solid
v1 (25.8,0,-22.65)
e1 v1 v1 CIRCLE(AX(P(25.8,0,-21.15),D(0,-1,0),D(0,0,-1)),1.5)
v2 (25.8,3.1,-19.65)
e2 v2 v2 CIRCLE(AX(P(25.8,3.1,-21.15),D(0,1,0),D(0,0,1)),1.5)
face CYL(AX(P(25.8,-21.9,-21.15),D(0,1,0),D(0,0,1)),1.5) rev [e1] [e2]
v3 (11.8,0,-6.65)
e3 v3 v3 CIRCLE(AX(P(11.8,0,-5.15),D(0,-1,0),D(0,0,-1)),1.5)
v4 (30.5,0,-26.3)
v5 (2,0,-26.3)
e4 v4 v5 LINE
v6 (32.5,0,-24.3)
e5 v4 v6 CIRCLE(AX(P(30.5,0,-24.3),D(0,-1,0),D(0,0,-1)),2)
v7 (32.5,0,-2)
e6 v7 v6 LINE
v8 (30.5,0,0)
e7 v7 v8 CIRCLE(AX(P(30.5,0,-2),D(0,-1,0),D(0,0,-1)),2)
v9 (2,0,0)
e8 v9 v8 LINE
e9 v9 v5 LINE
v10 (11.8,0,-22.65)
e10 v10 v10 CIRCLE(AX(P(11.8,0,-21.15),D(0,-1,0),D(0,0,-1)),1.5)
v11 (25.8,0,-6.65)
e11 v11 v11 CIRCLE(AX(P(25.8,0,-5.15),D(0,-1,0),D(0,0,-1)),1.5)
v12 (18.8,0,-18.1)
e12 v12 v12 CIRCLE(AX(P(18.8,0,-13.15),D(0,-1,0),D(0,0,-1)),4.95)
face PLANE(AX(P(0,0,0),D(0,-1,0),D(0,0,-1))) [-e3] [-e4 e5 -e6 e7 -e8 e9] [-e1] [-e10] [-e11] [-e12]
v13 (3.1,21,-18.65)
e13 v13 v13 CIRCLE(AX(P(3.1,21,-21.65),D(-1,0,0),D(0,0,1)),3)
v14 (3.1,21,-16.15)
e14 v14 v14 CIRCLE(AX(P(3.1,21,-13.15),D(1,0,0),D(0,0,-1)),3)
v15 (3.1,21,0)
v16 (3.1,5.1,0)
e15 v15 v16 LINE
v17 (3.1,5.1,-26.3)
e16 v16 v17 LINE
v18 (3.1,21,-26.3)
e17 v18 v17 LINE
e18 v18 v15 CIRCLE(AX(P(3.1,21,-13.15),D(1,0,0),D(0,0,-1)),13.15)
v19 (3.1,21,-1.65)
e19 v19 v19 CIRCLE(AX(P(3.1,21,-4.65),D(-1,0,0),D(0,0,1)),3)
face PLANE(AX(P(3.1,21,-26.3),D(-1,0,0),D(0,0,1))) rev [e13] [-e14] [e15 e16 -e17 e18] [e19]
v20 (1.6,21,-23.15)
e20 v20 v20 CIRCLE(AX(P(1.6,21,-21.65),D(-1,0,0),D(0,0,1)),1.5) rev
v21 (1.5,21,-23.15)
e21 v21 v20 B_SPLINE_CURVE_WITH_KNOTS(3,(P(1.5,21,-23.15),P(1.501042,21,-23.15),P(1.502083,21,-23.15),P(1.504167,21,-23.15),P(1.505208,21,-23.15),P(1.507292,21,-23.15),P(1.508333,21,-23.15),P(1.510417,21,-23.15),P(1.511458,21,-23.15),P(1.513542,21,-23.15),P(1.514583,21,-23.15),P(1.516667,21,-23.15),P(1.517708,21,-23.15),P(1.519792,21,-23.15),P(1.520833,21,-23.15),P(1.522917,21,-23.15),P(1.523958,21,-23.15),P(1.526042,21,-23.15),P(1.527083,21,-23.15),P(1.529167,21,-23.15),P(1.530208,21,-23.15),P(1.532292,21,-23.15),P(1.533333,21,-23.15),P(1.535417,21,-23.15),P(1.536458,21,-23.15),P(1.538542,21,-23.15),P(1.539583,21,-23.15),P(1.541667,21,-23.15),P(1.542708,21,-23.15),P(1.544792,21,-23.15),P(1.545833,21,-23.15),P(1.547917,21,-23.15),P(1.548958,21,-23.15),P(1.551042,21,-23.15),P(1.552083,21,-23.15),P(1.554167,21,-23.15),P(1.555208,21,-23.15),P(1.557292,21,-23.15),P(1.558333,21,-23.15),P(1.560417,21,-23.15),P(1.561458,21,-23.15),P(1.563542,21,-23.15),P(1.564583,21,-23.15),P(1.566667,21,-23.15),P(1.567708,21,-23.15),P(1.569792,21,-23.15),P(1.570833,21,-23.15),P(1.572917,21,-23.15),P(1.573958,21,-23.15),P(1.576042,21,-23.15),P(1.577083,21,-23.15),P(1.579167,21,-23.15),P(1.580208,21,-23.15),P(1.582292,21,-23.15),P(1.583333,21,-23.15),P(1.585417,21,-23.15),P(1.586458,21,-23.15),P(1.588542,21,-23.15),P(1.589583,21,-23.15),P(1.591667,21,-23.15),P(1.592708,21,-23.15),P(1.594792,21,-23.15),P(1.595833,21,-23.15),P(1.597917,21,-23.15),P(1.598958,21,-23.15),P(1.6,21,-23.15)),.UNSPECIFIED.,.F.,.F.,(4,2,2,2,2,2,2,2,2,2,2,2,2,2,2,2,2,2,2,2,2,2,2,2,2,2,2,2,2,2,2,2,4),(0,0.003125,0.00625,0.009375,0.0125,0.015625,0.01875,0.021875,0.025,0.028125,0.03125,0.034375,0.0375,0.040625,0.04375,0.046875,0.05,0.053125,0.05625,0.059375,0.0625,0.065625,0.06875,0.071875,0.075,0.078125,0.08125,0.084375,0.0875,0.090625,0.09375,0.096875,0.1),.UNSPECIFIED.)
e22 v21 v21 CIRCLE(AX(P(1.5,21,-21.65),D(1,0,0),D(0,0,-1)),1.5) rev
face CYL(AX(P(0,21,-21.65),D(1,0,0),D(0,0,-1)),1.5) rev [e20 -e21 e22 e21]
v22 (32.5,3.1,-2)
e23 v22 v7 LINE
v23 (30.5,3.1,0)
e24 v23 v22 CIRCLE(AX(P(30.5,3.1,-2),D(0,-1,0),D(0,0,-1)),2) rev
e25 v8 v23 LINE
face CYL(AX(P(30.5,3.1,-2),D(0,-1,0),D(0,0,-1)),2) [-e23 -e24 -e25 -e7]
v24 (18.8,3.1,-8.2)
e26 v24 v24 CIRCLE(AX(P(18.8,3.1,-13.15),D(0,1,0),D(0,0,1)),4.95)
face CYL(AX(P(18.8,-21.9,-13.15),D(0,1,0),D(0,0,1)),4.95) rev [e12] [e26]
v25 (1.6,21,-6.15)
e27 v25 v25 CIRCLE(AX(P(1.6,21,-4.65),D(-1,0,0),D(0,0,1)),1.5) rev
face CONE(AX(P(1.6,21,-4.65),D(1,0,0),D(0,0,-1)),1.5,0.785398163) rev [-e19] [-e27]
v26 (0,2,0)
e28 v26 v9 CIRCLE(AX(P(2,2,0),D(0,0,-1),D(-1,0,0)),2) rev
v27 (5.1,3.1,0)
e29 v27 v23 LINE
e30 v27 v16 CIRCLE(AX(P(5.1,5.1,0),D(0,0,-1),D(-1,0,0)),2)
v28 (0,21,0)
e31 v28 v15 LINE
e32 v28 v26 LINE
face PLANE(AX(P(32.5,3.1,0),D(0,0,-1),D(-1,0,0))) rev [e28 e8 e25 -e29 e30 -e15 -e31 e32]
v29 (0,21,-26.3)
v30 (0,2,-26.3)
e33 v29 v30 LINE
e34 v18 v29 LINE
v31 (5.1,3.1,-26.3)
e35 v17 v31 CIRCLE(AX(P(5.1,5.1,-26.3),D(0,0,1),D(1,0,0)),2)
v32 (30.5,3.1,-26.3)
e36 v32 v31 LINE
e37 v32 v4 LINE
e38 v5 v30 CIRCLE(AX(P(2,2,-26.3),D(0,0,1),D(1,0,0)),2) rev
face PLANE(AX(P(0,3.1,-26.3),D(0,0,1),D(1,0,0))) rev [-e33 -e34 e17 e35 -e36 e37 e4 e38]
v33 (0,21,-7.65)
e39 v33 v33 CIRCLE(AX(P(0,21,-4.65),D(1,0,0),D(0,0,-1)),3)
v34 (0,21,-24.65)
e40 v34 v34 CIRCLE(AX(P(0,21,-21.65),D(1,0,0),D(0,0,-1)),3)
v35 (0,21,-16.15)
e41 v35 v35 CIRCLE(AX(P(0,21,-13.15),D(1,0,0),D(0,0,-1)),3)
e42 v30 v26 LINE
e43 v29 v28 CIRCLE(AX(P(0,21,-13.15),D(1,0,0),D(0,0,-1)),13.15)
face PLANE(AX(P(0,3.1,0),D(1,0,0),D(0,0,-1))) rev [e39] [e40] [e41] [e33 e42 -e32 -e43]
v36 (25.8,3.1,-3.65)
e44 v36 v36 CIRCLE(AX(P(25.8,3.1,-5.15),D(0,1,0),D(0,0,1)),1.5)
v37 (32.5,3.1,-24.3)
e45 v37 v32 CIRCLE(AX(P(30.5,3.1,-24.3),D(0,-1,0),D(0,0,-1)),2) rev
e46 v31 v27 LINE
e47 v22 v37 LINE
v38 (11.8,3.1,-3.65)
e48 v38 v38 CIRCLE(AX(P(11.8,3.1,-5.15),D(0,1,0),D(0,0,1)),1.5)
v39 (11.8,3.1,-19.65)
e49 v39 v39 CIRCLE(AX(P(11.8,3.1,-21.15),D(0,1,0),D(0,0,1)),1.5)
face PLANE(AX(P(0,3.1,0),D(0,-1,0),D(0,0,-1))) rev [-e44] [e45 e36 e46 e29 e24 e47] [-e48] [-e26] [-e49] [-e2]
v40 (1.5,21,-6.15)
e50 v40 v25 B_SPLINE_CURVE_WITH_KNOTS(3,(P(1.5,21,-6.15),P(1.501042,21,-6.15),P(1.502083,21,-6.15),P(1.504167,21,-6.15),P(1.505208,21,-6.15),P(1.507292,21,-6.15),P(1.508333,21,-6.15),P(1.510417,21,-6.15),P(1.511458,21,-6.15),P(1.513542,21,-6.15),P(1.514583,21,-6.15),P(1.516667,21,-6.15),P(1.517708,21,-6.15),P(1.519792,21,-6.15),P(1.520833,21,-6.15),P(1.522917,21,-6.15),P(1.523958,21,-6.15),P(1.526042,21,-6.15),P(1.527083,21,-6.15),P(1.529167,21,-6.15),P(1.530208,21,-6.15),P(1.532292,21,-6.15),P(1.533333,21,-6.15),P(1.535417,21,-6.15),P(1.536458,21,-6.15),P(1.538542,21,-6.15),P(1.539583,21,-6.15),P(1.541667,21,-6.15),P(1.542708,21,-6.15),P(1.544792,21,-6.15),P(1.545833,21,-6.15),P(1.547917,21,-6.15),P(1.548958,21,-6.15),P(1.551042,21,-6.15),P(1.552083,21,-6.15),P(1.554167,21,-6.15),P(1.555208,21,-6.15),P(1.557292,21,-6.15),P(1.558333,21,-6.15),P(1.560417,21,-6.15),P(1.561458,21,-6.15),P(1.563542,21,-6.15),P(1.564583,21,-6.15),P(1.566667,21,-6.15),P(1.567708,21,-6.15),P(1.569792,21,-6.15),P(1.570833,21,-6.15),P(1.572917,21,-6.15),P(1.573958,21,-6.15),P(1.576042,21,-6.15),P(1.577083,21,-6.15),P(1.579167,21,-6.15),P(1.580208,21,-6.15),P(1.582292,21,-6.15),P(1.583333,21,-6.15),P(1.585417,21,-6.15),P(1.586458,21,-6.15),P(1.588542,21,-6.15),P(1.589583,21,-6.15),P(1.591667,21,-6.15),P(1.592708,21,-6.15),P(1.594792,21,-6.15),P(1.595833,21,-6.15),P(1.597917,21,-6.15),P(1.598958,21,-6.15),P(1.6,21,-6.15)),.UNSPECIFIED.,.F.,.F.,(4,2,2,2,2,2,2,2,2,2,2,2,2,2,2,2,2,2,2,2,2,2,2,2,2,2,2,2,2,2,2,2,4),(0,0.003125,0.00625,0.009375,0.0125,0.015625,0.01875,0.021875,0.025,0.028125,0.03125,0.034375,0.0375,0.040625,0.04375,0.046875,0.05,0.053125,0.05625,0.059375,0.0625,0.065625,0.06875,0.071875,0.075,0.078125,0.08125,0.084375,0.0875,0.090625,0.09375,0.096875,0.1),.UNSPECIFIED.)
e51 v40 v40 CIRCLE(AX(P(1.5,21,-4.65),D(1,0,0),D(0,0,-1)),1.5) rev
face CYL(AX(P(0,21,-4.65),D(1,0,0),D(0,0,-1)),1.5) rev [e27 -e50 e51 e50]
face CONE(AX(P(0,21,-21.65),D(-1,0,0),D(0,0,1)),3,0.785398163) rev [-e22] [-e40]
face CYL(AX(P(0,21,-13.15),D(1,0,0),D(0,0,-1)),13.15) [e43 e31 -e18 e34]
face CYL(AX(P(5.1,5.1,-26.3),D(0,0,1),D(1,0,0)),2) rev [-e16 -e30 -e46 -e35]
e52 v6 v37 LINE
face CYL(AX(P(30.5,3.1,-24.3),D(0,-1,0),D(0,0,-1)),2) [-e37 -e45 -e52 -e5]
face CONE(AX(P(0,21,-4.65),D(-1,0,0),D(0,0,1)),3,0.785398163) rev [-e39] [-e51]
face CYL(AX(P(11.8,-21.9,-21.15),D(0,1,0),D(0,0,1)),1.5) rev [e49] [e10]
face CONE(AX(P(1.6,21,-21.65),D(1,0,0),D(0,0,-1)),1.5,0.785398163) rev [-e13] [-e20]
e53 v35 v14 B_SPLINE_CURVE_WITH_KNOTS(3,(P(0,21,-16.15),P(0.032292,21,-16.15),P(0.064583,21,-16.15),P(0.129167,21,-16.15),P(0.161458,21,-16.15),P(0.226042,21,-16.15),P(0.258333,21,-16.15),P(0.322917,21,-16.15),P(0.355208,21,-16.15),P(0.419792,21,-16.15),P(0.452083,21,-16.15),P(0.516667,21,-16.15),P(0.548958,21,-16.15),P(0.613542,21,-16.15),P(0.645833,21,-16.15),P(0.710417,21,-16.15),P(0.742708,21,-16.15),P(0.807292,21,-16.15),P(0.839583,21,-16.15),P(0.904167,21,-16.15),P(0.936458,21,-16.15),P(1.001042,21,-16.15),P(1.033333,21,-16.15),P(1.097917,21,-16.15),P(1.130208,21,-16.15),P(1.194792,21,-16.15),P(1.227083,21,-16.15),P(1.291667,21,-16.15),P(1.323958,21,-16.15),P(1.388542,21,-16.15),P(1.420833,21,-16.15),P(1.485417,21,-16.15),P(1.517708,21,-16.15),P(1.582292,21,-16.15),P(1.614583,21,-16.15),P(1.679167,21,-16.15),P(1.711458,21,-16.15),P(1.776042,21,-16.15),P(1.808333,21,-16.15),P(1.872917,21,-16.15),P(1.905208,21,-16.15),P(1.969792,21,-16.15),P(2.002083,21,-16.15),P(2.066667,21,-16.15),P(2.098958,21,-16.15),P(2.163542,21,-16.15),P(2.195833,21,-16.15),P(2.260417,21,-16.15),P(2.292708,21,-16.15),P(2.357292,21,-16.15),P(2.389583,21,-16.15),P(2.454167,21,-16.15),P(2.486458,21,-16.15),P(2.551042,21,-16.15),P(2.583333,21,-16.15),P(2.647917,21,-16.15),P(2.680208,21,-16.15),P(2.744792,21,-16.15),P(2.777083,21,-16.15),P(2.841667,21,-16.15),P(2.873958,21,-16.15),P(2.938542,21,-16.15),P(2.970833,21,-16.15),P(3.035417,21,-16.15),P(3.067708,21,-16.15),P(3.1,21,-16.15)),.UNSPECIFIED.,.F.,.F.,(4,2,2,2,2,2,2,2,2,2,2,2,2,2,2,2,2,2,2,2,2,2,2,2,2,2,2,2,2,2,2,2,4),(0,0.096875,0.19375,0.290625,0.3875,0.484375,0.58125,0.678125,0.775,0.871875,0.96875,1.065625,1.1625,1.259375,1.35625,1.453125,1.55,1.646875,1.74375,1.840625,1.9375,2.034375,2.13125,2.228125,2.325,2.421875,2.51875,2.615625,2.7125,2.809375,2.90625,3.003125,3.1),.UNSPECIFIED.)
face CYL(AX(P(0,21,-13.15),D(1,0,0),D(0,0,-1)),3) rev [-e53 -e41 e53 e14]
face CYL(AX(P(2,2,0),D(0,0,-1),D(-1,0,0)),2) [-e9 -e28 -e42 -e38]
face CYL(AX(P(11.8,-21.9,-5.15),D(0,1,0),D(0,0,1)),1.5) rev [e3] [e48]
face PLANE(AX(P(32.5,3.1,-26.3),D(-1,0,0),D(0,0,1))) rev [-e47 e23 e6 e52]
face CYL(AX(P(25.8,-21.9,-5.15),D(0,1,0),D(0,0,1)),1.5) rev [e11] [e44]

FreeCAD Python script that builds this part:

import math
import FreeCAD as App
import Part
import Sketcher


def edges_at(feature, points):
    """Names of the edges that pass closest to the given points."""
    edges = feature.Shape.Edges
    near = lambda p: min(range(len(edges)), key=lambda i: edges[i].distToShape(Part.Vertex(*p))[0])
    return sorted({f"Edge{near(p) + 1}" for p in points})


def add_polygon(sketch, points):
    """Adds a closed chain of lines whose ends are joined by coincident constraints."""
    first, n = sketch.GeometryCount, len(points)
    for a, b in zip(points, points[1:] + points[:1]):
        sketch.addGeometry(Part.LineSegment(App.Vector(*a, 0), App.Vector(*b, 0)), False)
    for i in range(n):
        sketch.addConstraint(Sketcher.Constraint("Coincident", first + i, 2, first + (i + 1) % n, 1))

doc = App.newDocument("Part")
params = doc.addObject("Spreadsheet::Sheet", "Params")
for row, (alias, value) in enumerate([
    ("sketch1_width", "32.5 mm"),
    ("sketch1_height", "26.3 mm"),
    ("pad1_length", "3.1 mm"),
    ("sketch2_width", "3.1 mm"),
    ("sketch2_height", "26.3 mm"),
    ("pad2_length", "17.9 mm"),
    ("sketch3_radius", "13.15 mm"),
    ("pad3_length", "3.1 mm"),
    ("fillet_radius", "2 mm"),
    ("sketch4_diameter", "6 mm"),
    ("sketch4_diameter2", "3 mm"),
    ("pocket1_length", "3.1 mm"),
    ("chamfer_size", "1.5 mm"),
    ("sketch5_diameter", "3 mm"),
    ("sketch5_diameter2", "9.9 mm"),
    ("pocket2_length", "25 mm"),
], start=1):
    params.set(f"A{row}", alias)
    params.set(f"B{row}", "=" + value)
    params.setAlias(f"B{row}", alias)

body = doc.addObject("PartDesign::Body", "Body")

sketch1 = body.newObject("Sketcher::SketchObject", "Sketch")
sketch1.AttachmentSupport = (doc.getObject("XZ_Plane"), [""])
sketch1.MapMode = "FlatFace"
add_polygon(sketch1, [(0, -26), (0, 0), (32, 0), (32, -26)])
sketch1.addConstraint([
    Sketcher.Constraint("Vertical", 0),
    Sketcher.Constraint("Horizontal", 1),
    Sketcher.Constraint("Vertical", 2),
    Sketcher.Constraint("Horizontal", 3),
    Sketcher.Constraint("Coincident", 0, 2, -1, 1),
    Sketcher.Constraint("DistanceX", 1, 1, 1, 2, 32.5),
    Sketcher.Constraint("DistanceY", 0, 1, 0, 2, 26.3),
])
sketch1.setExpression("Constraints[9]", "Params.sketch1_width")
sketch1.setExpression("Constraints[10]", "Params.sketch1_height")
pad1 = body.newObject("PartDesign::Pad", "Pad")
pad1.Profile = sketch1
pad1.setExpression("Length", "Params.pad1_length")
pad1.Reversed = True

sketch2 = body.newObject("Sketcher::SketchObject", "Sketch001")
sketch2.AttachmentSupport = (doc.getObject("XZ_Plane"), [""])
sketch2.MapMode = "FlatFace"
sketch2.AttachmentOffset = App.Placement(App.Vector(0, 0, -3.1), App.Rotation())
add_polygon(sketch2, [(0, -26.3), (0, 0), (3.1, 0), (3.1, -26.3)])
sketch2.addConstraint([
    Sketcher.Constraint("Vertical", 0),
    Sketcher.Constraint("Horizontal", 1),
    Sketcher.Constraint("Vertical", 2),
    Sketcher.Constraint("Horizontal", 3),
    Sketcher.Constraint("Coincident", 0, 2, -1, 1),
    Sketcher.Constraint("DistanceX", 1, 1, 1, 2, 3.1),
    Sketcher.Constraint("DistanceY", 0, 1, 0, 2, 26.3),
])
sketch2.setExpression("Constraints[9]", "Params.sketch2_width")
sketch2.setExpression("Constraints[10]", "Params.sketch2_height")
pad2 = body.newObject("PartDesign::Pad", "Pad001")
pad2.Profile = sketch2
pad2.setExpression("Length", "Params.pad2_length")
pad2.Reversed = True

sketch3 = body.newObject("Sketcher::SketchObject", "Sketch002")
sketch3.AttachmentSupport = (doc.getObject("YZ_Plane"), [""])
sketch3.MapMode = "FlatFace"
sketch3.AttachmentOffset = App.Placement(App.Vector(0, 0, 3.1), App.Rotation())
sketch3.addGeometry([
    Part.LineSegment(App.Vector(21, 0, 0), App.Vector(21, -26, 0)),
    Part.ArcOfCircle(Part.Circle(App.Vector(21, -13, 0), App.Vector(0, 0, 1), 13), math.radians(-90), math.radians(90)),
], False)
sketch3.addConstraint([
    Sketcher.Constraint("Coincident", 0, 1, 1, 2),
    Sketcher.Constraint("Coincident", 1, 1, 0, 2),
    Sketcher.Constraint("Vertical", 0),
    Sketcher.Constraint("PointOnObject", 0, 1, -1),
    Sketcher.Constraint("Vertical", 1, 3, 0, 1),
    Sketcher.Constraint("Radius", 1, 13.15),
    Sketcher.Constraint("DistanceX", -1, 1, 1, 3, 21.0),
])
sketch3.setExpression("Constraints[5]", "Params.sketch3_radius")
pad3 = body.newObject("PartDesign::Pad", "Pad002")
pad3.Profile = sketch3
pad3.setExpression("Length", "Params.pad3_length")
pad3.Reversed = True
doc.recompute()

fillet = body.newObject("PartDesign::Fillet", "Fillet")
fillet.Base = (pad3, edges_at(pad3, [
    (3.1, 3.1, -13.15),
    (0, 0, -13.15),
    (32.5, 1.55, -26.3),
    (32.5, 1.55, 0),
]))
fillet.setExpression("Radius", "Params.fillet_radius")

sketch4 = body.newObject("Sketcher::SketchObject", "Sketch003")
sketch4.AttachmentSupport = (doc.getObject("YZ_Plane"), [""])
sketch4.MapMode = "FlatFace"
sketch4.AttachmentOffset = App.Placement(App.Vector(0, 0, 3.1), App.Rotation())
sketch4.addGeometry([
    Part.Circle(App.Vector(21, -13.2, 0), App.Vector(0, 0, 1), 3),
    Part.Circle(App.Vector(21, -21.6, 0), App.Vector(0, 0, 1), 1.5),
    Part.Circle(App.Vector(21, -4.7, 0), App.Vector(0, 0, 1), 1.5),
], False)
sketch4.addConstraint([
    Sketcher.Constraint("Equal", 1, 2),
    Sketcher.Constraint("Vertical", 0, 3, 1, 3),
    Sketcher.Constraint("Vertical", 1, 3, 2, 3),
    Sketcher.Constraint("Diameter", 0, 6.0),
    Sketcher.Constraint("Diameter", 1, 3.0),
    Sketcher.Constraint("DistanceX", -1, 1, 0, 3, 21.0),
    Sketcher.Constraint("DistanceY", 1, 3, 2, 3, 17.0),
    Sketcher.Constraint("DistanceY", 1, 3, 0, 3, 8.5),
    Sketcher.Constraint("DistanceY", 0, 3, -1, 1, 13.15),
])
sketch4.setExpression("Constraints[3]", "Params.sketch4_diameter")
sketch4.setExpression("Constraints[4]", "Params.sketch4_diameter2")
pocket1 = body.newObject("PartDesign::Pocket", "Pocket")
pocket1.Profile = sketch4
pocket1.setExpression("Length", "Params.pocket1_length")
doc.recompute()

chamfer = body.newObject("PartDesign::Chamfer", "Chamfer")
chamfer.Base = (pocket1, edges_at(pocket1, [
    (0, 21, -3.15),
    (3.1, 21, -3.15),
    (0, 21, -20.15),
    (3.1, 21, -20.15),
]))
chamfer.setExpression("Size", "Params.chamfer_size")

sketch5 = body.newObject("Sketcher::SketchObject", "Sketch004")
sketch5.AttachmentSupport = (doc.getObject("XZ_Plane"), [""])
sketch5.MapMode = "FlatFace"
sketch5.AttachmentOffset = App.Placement(App.Vector(0, 0, -3.1), App.Rotation())
sketch5.addGeometry([
    Part.Circle(App.Vector(18.8, -13.2, 0), App.Vector(0, 0, 1), 5),
    Part.Circle(App.Vector(25.8, -21.1, 0), App.Vector(0, 0, 1), 1.5),
    Part.Circle(App.Vector(25.8, -5.2, 0), App.Vector(0, 0, 1), 1.5),
    Part.Circle(App.Vector(11.8, -21.1, 0), App.Vector(0, 0, 1), 1.5),
    Part.Circle(App.Vector(11.8, -5.2, 0), App.Vector(0, 0, 1), 1.5),
], False)
sketch5.addConstraint([
    Sketcher.Constraint("Equal", 1, 2),
    Sketcher.Constraint("Equal", 2, 3),
    Sketcher.Constraint("Equal", 3, 4),
    Sketcher.Constraint("Horizontal", 1, 3, 3, 3),
    Sketcher.Constraint("Horizontal", 2, 3, 4, 3),
    Sketcher.Constraint("Vertical", 1, 3, 2, 3),
    Sketcher.Constraint("Vertical", 3, 3, 4, 3),
    Sketcher.Constraint("Diameter", 1, 3.0),
    Sketcher.Constraint("Diameter", 0, 9.9),
    Sketcher.Constraint("DistanceX", 0, 3, 1, 3, 7.0),
    Sketcher.Constraint("DistanceY", 1, 3, 0, 3, 8.0),
    Sketcher.Constraint("DistanceY", 0, 3, 2, 3, 8.0),
    Sketcher.Constraint("DistanceX", 3, 3, 0, 3, 7.0),
    Sketcher.Constraint("DistanceX", -1, 1, 0, 3, 18.8),
    Sketcher.Constraint("DistanceY", 0, 3, -1, 1, 13.15),
])
sketch5.setExpression("Constraints[7]", "Params.sketch5_diameter")
sketch5.setExpression("Constraints[8]", "Params.sketch5_diameter2")
pocket2 = body.newObject("PartDesign::Pocket", "Pocket001")
pocket2.Profile = sketch5
pocket2.setExpression("Length", "Params.pocket2_length")
pocket2.Reversed = True

doc.recompute()
